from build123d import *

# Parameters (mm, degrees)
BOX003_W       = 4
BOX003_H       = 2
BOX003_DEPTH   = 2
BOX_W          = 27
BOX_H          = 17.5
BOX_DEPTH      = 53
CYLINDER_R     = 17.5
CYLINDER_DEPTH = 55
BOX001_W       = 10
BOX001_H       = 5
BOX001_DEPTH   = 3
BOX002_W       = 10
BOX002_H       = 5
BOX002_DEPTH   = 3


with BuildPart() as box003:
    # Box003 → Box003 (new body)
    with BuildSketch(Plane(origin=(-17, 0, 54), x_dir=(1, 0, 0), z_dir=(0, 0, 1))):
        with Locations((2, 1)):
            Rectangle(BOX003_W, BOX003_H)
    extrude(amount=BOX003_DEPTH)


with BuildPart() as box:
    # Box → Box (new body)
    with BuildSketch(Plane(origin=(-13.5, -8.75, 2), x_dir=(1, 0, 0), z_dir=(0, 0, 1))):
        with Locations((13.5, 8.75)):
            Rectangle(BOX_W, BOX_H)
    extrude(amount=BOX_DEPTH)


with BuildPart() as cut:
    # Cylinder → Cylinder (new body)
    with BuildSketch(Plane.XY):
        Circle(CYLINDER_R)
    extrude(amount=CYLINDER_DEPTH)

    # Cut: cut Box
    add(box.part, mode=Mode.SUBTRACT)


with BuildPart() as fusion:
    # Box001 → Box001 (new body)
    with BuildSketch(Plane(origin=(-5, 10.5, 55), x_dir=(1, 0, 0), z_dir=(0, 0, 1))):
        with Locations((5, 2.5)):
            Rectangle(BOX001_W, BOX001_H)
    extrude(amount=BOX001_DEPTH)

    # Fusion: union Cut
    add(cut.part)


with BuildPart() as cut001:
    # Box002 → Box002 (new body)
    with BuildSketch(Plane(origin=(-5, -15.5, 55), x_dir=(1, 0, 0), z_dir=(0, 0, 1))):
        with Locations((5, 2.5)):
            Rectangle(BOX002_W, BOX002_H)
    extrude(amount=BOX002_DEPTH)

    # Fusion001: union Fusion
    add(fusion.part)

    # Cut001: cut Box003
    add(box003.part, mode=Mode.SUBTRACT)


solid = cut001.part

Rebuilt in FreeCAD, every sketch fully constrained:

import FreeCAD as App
import Part
import Sketcher
from FreeCAD import Vector
Q = App.Units.Quantity


def add_polygon(sketch, points):
    """Adds a closed chain of lines whose ends are joined by coincident constraints."""
    first, n = sketch.GeometryCount, len(points)
    for a, b in zip(points, points[1:] + points[:1]):
        sketch.addGeometry(Part.LineSegment(App.Vector(*a, 0), App.Vector(*b, 0)), False)
    for i in range(n):
        sketch.addConstraint(Sketcher.Constraint("Coincident", first + i, 2, first + (i + 1) % n, 1))

doc = App.newDocument("Part")
body = doc.addObject("PartDesign::Body", "Body")

# Sketch on XY plane
sketch1 = body.newObject("Sketcher::SketchObject", "Sketch")
sketch1.AttachmentSupport = (doc.getObject("XY_Plane"), [""])
sketch1.MapMode = "FlatFace"
sketch1.AttachmentOffset = App.Placement(Vector(0, 0, 54), App.Rotation())
add_polygon(sketch1, [(-17, 2), (-17, 0), (-13, 0), (-13, 2)])  # lines 0-3
sketch1.addConstraint(Sketcher.Constraint("Vertical", 0))
sketch1.addConstraint(Sketcher.Constraint("Horizontal", 1))
sketch1.addConstraint(Sketcher.Constraint("Vertical", 2))
sketch1.addConstraint(Sketcher.Constraint("Horizontal", 3))
sketch1.addConstraint(Sketcher.Constraint("PointOnObject", 0, 2, -1))
sketch1.addConstraint(Sketcher.Constraint("DistanceX", 1, 1, 1, 2, Q("4 mm")))
sketch1.addConstraint(Sketcher.Constraint("DistanceY", 0, 2, 0, 1, Q("2 mm")))
sketch1.addConstraint(Sketcher.Constraint("DistanceX", 0, 2, -1, 1, Q("17 mm")))
pad1 = body.newObject("PartDesign::Pad", "Pad")
pad1.Profile = sketch1
pad1.Length = 2
body2 = doc.addObject("PartDesign::Body", "Body001")

# Sketch on XY plane
sketch2 = body2.newObject("Sketcher::SketchObject", "Sketch001")
sketch2.AttachmentSupport = (doc.getObject("XY_Plane001"), [""])
sketch2.MapMode = "FlatFace"
sketch2.AttachmentOffset = App.Placement(Vector(0, 0, 2), App.Rotation())
add_polygon(sketch2, [(-14, 9), (-14, -9), (14, -9), (14, 9)])  # lines 0-3
sketch2.addConstraint(Sketcher.Constraint("Vertical", 0))
sketch2.addConstraint(Sketcher.Constraint("Horizontal", 1))
sketch2.addConstraint(Sketcher.Constraint("Vertical", 2))
sketch2.addConstraint(Sketcher.Constraint("Horizontal", 3))
sketch2.addConstraint(Sketcher.Constraint("Symmetric", 0, 2, 2, 2, -1, 1))
sketch2.addConstraint(Sketcher.Constraint("DistanceX", 1, 1, 1, 2, Q("27 mm")))
sketch2.addConstraint(Sketcher.Constraint("DistanceY", 0, 2, 0, 1, Q("17.5 mm")))
pad2 = body2.newObject("PartDesign::Pad", "Pad001")
pad2.Profile = sketch2
pad2.Length = 53
body3 = doc.addObject("PartDesign::Body", "Body002")

# Sketch on XY plane
sketch3 = body3.newObject("Sketcher::SketchObject", "Sketch002")
sketch3.AttachmentSupport = (doc.getObject("XY_Plane002"), [""])
sketch3.MapMode = "FlatFace"
sketch3.addGeometry(Part.Circle(Vector(0, 0, 0), Vector(0, 0, 1), 18), False)
sketch3.addConstraint(Sketcher.Constraint("Coincident", 0, 3, -1, 1))
sketch3.addConstraint(Sketcher.Constraint("Diameter", 0, Q("35 mm")))
pad3 = body3.newObject("PartDesign::Pad", "Pad002")
pad3.Profile = sketch3
pad3.Length = 55
doc.recompute()

boolean = body3.newObject("PartDesign::Boolean", "Boolean")
boolean.Type = "Cut"
boolean.addObjects([body2])
body4 = doc.addObject("PartDesign::Body", "Body003")

# Sketch on XY plane
sketch4 = body4.newObject("Sketcher::SketchObject", "Sketch003")
sketch4.AttachmentSupport = (doc.getObject("XY_Plane003"), [""])
sketch4.MapMode = "FlatFace"
sketch4.AttachmentOffset = App.Placement(Vector(0, 0, 55), App.Rotation())
add_polygon(sketch4, [(-5, 16), (-5, 10), (5, 10), (5, 16)])  # lines 0-3
sketch4.addConstraint(Sketcher.Constraint("Vertical", 0))
sketch4.addConstraint(Sketcher.Constraint("Horizontal", 1))
sketch4.addConstraint(Sketcher.Constraint("Vertical", 2))
sketch4.addConstraint(Sketcher.Constraint("Horizontal", 3))
sketch4.addConstraint(Sketcher.Constraint("DistanceX", 1, 1, 1, 2, Q("10 mm")))
sketch4.addConstraint(Sketcher.Constraint("DistanceY", 0, 2, 0, 1, Q("5 mm")))
sketch4.addConstraint(Sketcher.Constraint("DistanceX", 0, 2, -1, 1, Q("5 mm")))
sketch4.addConstraint(Sketcher.Constraint("DistanceY", -1, 1, 0, 2, Q("10.5 mm")))
pad4 = body4.newObject("PartDesign::Pad", "Pad003")
pad4.Profile = sketch4
pad4.Length = 3
doc.recompute()

boolean2 = body4.newObject("PartDesign::Boolean", "Boolean001")
boolean2.Type = "Fuse"
boolean2.addObjects([body3])
body5 = doc.addObject("PartDesign::Body", "Body004")

# Sketch on XY plane
sketch5 = body5.newObject("Sketcher::SketchObject", "Sketch004")
sketch5.AttachmentSupport = (doc.getObject("XY_Plane004"), [""])
sketch5.MapMode = "FlatFace"
sketch5.AttachmentOffset = App.Placement(Vector(0, 0, 55), App.Rotation())
add_polygon(sketch5, [(-5, -10), (-5, -16), (5, -16), (5, -10)])  # lines 0-3
sketch5.addConstraint(Sketcher.Constraint("Vertical", 0))
sketch5.addConstraint(Sketcher.Constraint("Horizontal", 1))
sketch5.addConstraint(Sketcher.Constraint("Vertical", 2))
sketch5.addConstraint(Sketcher.Constraint("Horizontal", 3))
sketch5.addConstraint(Sketcher.Constraint("DistanceX", 1, 1, 1, 2, Q("10 mm")))
sketch5.addConstraint(Sketcher.Constraint("DistanceY", 0, 2, 0, 1, Q("5 mm")))
sketch5.addConstraint(Sketcher.Constraint("DistanceX", 0, 2, -1, 1, Q("5 mm")))
sketch5.addConstraint(Sketcher.Constraint("DistanceY", 0, 2, -1, 1, Q("15.5 mm")))
pad5 = body5.newObject("PartDesign::Pad", "Pad004")
pad5.Profile = sketch5
pad5.Length = 3
doc.recompute()

boolean3 = body5.newObject("PartDesign::Boolean", "Boolean002")
boolean3.Type = "Fuse"
boolean3.addObjects([body4])
doc.recompute()

boolean4 = body5.newObject("PartDesign::Boolean", "Boolean003")
boolean4.Type = "Cut"
boolean4.addObjects([body])

doc.recompute()
